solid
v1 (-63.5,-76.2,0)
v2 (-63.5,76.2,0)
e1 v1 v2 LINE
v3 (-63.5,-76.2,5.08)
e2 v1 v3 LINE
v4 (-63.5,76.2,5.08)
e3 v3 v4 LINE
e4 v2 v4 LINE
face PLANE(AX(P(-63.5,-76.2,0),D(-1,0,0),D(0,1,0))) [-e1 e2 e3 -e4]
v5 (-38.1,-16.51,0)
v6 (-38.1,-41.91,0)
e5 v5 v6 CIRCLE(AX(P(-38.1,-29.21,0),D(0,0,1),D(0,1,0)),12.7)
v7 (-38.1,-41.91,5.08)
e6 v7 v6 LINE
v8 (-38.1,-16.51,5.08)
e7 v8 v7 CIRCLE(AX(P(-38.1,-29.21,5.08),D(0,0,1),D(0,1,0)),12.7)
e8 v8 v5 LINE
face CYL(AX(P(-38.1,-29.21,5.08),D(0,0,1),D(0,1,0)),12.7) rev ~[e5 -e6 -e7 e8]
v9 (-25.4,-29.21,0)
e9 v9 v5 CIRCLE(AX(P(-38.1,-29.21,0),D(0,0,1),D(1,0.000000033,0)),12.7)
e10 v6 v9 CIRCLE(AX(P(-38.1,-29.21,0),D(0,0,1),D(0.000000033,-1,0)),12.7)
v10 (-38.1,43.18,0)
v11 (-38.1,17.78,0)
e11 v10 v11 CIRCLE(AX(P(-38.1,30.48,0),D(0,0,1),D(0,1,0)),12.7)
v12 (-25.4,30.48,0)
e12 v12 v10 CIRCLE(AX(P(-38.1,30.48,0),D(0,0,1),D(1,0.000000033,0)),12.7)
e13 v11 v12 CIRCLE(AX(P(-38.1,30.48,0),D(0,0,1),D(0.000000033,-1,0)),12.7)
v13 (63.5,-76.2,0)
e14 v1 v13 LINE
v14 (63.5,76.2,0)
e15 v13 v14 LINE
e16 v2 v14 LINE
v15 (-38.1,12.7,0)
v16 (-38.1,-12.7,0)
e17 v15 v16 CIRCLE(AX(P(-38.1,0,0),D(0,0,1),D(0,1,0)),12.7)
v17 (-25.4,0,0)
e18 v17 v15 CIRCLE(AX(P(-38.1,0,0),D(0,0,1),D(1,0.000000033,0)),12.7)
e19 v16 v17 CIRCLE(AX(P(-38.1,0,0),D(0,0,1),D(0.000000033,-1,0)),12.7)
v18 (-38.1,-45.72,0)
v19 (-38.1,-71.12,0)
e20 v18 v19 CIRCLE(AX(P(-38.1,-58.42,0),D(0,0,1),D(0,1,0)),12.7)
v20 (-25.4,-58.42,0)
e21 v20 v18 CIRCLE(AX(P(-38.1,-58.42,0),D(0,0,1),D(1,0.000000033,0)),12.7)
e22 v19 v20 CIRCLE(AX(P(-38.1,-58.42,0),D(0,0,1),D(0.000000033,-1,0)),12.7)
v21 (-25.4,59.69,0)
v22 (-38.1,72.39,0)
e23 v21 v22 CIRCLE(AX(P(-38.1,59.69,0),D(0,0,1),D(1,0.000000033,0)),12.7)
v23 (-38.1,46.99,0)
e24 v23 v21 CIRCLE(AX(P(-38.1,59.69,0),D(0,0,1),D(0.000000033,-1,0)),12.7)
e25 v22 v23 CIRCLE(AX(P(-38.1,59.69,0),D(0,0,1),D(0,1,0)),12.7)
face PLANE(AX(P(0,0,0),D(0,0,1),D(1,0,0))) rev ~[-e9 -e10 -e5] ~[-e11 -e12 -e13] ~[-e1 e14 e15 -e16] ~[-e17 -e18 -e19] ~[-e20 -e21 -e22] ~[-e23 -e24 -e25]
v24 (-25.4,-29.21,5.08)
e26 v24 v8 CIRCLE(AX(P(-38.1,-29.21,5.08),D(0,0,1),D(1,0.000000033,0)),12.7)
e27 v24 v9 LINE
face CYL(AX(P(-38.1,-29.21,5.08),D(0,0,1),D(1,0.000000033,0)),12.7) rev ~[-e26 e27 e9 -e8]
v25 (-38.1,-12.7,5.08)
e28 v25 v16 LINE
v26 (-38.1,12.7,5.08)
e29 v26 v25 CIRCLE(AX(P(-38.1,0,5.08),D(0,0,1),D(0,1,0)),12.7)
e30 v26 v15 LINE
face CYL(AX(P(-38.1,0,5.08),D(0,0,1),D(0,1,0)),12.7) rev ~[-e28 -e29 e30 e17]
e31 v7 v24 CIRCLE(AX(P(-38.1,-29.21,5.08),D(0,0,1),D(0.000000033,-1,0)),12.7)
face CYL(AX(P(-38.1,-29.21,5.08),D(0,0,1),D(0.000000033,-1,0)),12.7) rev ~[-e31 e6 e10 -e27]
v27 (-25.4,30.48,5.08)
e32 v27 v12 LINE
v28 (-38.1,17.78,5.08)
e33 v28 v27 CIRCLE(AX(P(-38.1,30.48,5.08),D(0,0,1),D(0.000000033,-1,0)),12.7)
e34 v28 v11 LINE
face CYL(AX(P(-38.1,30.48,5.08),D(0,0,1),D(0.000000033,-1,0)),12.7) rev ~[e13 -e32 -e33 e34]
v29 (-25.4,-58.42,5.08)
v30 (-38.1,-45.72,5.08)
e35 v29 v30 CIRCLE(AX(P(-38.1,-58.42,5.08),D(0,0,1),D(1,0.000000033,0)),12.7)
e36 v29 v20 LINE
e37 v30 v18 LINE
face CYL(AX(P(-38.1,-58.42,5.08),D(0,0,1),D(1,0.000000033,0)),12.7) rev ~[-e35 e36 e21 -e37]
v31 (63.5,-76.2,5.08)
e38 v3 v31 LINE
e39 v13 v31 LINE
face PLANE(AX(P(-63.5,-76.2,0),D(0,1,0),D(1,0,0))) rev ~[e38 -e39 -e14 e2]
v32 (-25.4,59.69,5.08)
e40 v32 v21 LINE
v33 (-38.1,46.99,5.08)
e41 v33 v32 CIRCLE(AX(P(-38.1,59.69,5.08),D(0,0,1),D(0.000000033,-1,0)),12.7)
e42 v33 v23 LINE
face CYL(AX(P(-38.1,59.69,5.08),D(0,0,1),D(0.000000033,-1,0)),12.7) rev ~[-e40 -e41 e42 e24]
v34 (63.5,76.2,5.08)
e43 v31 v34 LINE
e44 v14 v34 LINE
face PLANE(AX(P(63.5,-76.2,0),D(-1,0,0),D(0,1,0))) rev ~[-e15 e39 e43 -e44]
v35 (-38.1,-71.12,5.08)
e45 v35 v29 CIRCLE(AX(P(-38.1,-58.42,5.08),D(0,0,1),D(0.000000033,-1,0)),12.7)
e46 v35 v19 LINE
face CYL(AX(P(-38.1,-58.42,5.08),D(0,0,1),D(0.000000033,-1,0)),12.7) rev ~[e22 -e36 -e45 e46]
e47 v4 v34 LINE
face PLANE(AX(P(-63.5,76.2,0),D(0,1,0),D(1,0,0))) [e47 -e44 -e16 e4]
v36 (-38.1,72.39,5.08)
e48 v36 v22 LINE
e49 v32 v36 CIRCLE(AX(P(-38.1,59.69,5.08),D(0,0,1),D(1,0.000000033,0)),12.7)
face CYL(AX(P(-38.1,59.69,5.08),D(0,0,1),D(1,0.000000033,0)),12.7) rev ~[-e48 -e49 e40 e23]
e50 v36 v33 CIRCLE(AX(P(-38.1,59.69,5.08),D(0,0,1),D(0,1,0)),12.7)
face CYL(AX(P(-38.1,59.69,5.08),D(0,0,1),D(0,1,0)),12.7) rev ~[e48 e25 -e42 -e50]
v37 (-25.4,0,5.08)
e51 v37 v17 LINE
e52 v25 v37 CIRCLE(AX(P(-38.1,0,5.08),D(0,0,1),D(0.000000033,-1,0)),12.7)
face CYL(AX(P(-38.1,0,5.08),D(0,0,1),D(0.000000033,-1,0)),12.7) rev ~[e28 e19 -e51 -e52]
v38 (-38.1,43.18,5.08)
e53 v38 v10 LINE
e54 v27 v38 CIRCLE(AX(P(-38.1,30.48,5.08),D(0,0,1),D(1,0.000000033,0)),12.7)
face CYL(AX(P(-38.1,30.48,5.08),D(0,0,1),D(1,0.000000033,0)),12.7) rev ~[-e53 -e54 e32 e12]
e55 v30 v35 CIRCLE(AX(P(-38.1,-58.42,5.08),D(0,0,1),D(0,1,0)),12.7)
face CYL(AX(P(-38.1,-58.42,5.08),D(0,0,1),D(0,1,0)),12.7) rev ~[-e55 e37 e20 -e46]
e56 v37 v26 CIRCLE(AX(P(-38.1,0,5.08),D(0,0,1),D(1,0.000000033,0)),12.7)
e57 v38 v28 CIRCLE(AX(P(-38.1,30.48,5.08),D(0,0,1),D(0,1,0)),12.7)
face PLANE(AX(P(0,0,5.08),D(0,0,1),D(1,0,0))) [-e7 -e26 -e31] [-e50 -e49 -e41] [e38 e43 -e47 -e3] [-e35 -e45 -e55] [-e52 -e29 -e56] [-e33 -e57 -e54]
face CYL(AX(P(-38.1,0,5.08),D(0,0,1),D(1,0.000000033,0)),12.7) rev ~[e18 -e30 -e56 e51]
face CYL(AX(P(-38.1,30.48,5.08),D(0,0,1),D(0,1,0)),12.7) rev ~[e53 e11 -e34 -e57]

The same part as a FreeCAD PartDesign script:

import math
import FreeCAD as App
import Part
import Sketcher

V = App.Vector
Q = App.Units.Quantity

doc = App.newDocument("Part")
params = doc.addObject("Spreadsheet::Sheet", "Params")
for row, (alias, value) in enumerate([
    ("sketch1_width", "5 in"),
    ("sketch1_height", "6 in"),
    ("pad1_length", "0.2 in"),
    ("sketch2_radius", "0.5 in"),
    ("pocket1_length", "0.3 in"),
], start=1):
    params.set(f"A{row}", alias)
    params.set(f"B{row}", "=" + value)
    params.setAlias(f"B{row}", alias)

body = doc.addObject("PartDesign::Body", "Body")

sketch1 = body.newObject("Sketcher::SketchObject", "Sketch")
sketch1.AttachmentSupport = (doc.getObject("XY_Plane"), [""])
sketch1.MapMode = "FlatFace"
sketch1.addGeometry([
    Part.LineSegment(V(-64, 76, 0), V(-64, -76, 0)),
    Part.LineSegment(V(-64, -76, 0), V(64, -76, 0)),
    Part.LineSegment(V(64, -76, 0), V(64, 76, 0)),
    Part.LineSegment(V(64, 76, 0), V(-64, 76, 0)),
], False)
sketch1.addConstraint([
    Sketcher.Constraint("Coincident", 0, 2, 1, 1),
    Sketcher.Constraint("Coincident", 1, 2, 2, 1),
    Sketcher.Constraint("Coincident", 2, 2, 3, 1),
    Sketcher.Constraint("Coincident", 3, 2, 0, 1),
    Sketcher.Constraint("Vertical", 0),
    Sketcher.Constraint("Horizontal", 1),
    Sketcher.Constraint("Vertical", 2),
    Sketcher.Constraint("Horizontal", 3),
    Sketcher.Constraint("Symmetric", 0, 2, 2, 2, -1, 1),
    Sketcher.Constraint("DistanceX", 1, 1, 1, 2, Q("5 in")),
    Sketcher.Constraint("DistanceY", 0, 2, 0, 1, Q("6 in")),
])
sketch1.setExpression("Constraints[9]", "Params.sketch1_width")
sketch1.setExpression("Constraints[10]", "Params.sketch1_height")
pad1 = body.newObject("PartDesign::Pad", "Pad")
pad1.Profile = sketch1
pad1.setExpression("Length", "Params.pad1_length")

sketch2 = body.newObject("Sketcher::SketchObject", "Sketch001")
sketch2.AttachmentSupport = (doc.getObject("XY_Plane"), [""])
sketch2.MapMode = "FlatFace"
sketch2.AttachmentOffset = App.Placement(V(0, 0, 0.2 * 25.4), App.Rotation())
sketch2.addGeometry([
    Part.ArcOfCircle(Part.Circle(V(-38, -58, 0), V(0, 0, 1), 13), math.radians(90), math.radians(270)),
    Part.ArcOfCircle(Part.Circle(V(-38, -58, 0), V(0, 0, 1), 13), math.radians(-90), math.radians(0)),
    Part.ArcOfCircle(Part.Circle(V(-38, -58, 0), V(0, 0, 1), 13), math.radians(0), math.radians(90)),
    Part.ArcOfCircle(Part.Circle(V(-38, -29, 0), V(0, 0, 1), 13), math.radians(-90), math.radians(0)),
    Part.ArcOfCircle(Part.Circle(V(-38, -29, 0), V(0, 0, 1), 13), math.radians(0), math.radians(90)),
    Part.ArcOfCircle(Part.Circle(V(-38, -29, 0), V(0, 0, 1), 13), math.radians(90), math.radians(270)),
    Part.ArcOfCircle(Part.Circle(V(-38, 0, 0), V(0, 0, 1), 13), math.radians(90), math.radians(270)),
    Part.ArcOfCircle(Part.Circle(V(-38, 0, 0), V(0, 0, 1), 13), math.radians(-90), math.radians(0)),
    Part.ArcOfCircle(Part.Circle(V(-38, 0, 0), V(0, 0, 1), 13), math.radians(0), math.radians(90)),
    Part.ArcOfCircle(Part.Circle(V(-38, 30, 0), V(0, 0, 1), 13), math.radians(90), math.radians(270)),
    Part.ArcOfCircle(Part.Circle(V(-38, 30, 0), V(0, 0, 1), 13), math.radians(-90), math.radians(0)),
    Part.ArcOfCircle(Part.Circle(V(-38, 30, 0), V(0, 0, 1), 13), math.radians(0), math.radians(90)),
    Part.ArcOfCircle(Part.Circle(V(-38, 60, 0), V(0, 0, 1), 13), math.radians(90), math.radians(270)),
    Part.ArcOfCircle(Part.Circle(V(-38, 60, 0), V(0, 0, 1), 13), math.radians(-90), math.radians(0)),
    Part.ArcOfCircle(Part.Circle(V(-38, 60, 0), V(0, 0, 1), 13), math.radians(0), math.radians(90)),
], False)
sketch2.addConstraint([
    Sketcher.Constraint("Tangent", 0, 2, 1, 1),
    Sketcher.Constraint("Tangent", 1, 2, 2, 1),
    Sketcher.Constraint("Tangent", 2, 2, 0, 1),
    Sketcher.Constraint("Tangent", 3, 2, 4, 1),
    Sketcher.Constraint("Tangent", 4, 2, 5, 1),
    Sketcher.Constraint("Tangent", 5, 2, 3, 1),
    Sketcher.Constraint("Tangent", 6, 2, 7, 1),
    Sketcher.Constraint("Tangent", 7, 2, 8, 1),
    Sketcher.Constraint("Tangent", 8, 2, 6, 1),
    Sketcher.Constraint("Tangent", 9, 2, 10, 1),
    Sketcher.Constraint("Tangent", 10, 2, 11, 1),
    Sketcher.Constraint("Tangent", 11, 2, 9, 1),
    Sketcher.Constraint("Tangent", 12, 2, 13, 1),
    Sketcher.Constraint("Tangent", 13, 2, 14, 1),
    Sketcher.Constraint("Tangent", 14, 2, 12, 1),
    Sketcher.Constraint("Equal", 2, 3),
    Sketcher.Constraint("Equal", 5, 6),
    Sketcher.Constraint("Equal", 8, 9),
    Sketcher.Constraint("Equal", 11, 12),
    Sketcher.Constraint("Symmetric", 6, 2, 8, 2, -1),
    Sketcher.Constraint("PointOnObject", 7, 2, -1),
    Sketcher.Constraint("Horizontal", 2, 3, 1, 2),
    Sketcher.Constraint("Horizontal", 5, 3, 3, 2),
    Sketcher.Constraint("Horizontal", 11, 3, 10, 2),
    Sketcher.Constraint("Horizontal", 14, 3, 13, 2),
    Sketcher.Constraint("Vertical", 2, 3, 3, 3),
    Sketcher.Constraint("Vertical", 5, 3, 6, 3),
    Sketcher.Constraint("Vertical", 8, 3, 9, 3),
    Sketcher.Constraint("Vertical", 11, 3, 12, 3),
    Sketcher.Constraint("Vertical", 14, 3, 0, 2),
    Sketcher.Constraint("Vertical", 0, 2, 2, 2),
    Sketcher.Constraint("Vertical", 2, 2, 4, 2),
    Sketcher.Constraint("Vertical", 4, 2, 5, 2),
    Sketcher.Constraint("Vertical", 5, 2, 6, 2),
    Sketcher.Constraint("Vertical", 8, 2, 9, 2),
    Sketcher.Constraint("Vertical", 9, 2, 11, 2),
    Sketcher.Constraint("Vertical", 11, 2, 12, 2),
    Sketcher.Constraint("Vertical", 12, 2, 14, 2),
    Sketcher.Constraint("Radius", 0, Q("0.5 in")),
    Sketcher.Constraint("DistanceX", 1, 2, -1, 1, Q("1 in")),
    Sketcher.Constraint("DistanceY", 0, 3, -1, 1, Q("2.3 in")),
    Sketcher.Constraint("DistanceY", -1, 1, 9, 3, Q("1.2 in")),
    Sketcher.Constraint("DistanceY", 3, 3, -1, 1, Q("1.15 in")),
    Sketcher.Constraint("DistanceY", -1, 1, 12, 3, Q("2.35 in")),
])
sketch2.setExpression("Constraints[38]", "Params.sketch2_radius")
pocket1 = body.newObject("PartDesign::Pocket", "Pocket")
pocket1.Profile = sketch2
pocket1.setExpression("Length", "Params.pocket1_length")

doc.recompute()
